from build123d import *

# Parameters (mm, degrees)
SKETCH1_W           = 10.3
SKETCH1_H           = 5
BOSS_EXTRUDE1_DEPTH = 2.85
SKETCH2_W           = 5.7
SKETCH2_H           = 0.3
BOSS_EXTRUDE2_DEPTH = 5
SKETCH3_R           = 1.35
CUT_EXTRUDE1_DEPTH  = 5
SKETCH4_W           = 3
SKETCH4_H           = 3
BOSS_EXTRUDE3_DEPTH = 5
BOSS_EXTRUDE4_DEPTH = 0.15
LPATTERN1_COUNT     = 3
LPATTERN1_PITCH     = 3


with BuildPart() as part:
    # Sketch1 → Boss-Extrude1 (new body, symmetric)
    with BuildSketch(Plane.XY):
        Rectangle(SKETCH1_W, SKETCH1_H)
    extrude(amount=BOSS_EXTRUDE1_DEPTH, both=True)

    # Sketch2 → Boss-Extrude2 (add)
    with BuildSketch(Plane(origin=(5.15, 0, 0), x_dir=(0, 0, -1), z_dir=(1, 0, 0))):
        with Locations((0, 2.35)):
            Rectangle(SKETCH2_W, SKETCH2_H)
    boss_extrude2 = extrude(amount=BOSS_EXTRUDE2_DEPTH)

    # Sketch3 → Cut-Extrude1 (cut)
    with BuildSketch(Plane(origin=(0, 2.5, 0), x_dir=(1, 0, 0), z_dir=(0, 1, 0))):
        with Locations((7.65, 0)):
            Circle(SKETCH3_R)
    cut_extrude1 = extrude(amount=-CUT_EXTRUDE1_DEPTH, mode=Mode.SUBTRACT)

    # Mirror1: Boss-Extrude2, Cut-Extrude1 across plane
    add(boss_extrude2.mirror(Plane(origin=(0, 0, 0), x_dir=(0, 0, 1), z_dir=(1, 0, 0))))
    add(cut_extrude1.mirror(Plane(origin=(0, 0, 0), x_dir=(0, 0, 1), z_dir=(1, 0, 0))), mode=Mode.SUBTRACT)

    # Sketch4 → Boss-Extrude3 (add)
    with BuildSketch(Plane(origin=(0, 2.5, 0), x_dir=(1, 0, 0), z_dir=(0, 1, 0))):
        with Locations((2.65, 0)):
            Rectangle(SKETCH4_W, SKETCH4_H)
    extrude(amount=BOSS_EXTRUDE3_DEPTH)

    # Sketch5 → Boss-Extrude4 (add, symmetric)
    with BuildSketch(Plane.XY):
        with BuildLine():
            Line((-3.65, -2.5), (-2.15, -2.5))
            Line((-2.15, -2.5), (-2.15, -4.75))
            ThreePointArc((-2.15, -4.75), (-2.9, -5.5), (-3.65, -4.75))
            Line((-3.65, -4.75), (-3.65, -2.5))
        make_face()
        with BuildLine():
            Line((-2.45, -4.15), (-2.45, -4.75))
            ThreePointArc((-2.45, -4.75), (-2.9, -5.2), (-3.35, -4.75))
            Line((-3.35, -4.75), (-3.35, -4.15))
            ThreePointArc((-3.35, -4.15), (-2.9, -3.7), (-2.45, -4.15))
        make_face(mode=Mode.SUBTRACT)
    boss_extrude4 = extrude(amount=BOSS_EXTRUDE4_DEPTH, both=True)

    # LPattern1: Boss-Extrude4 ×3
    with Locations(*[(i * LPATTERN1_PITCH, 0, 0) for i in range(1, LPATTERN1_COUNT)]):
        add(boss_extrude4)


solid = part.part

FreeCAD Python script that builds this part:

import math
import FreeCAD as App
import Part
import Sketcher

V = App.Vector
Q = App.Units.Quantity

doc = App.newDocument("Part")
params = doc.addObject("Spreadsheet::Sheet", "Params")
for row, (alias, value) in enumerate([
    ("sketch1_height", "5 mm"),
    ("sketch1_width", "10.3 mm"),
    ("pad1_length", "5.7 mm"),
    ("sketch2_width", "0.3 mm"),
    ("sketch2_height", "5.7 mm"),
    ("pad2_length", "5 mm"),
    ("sketch3_diameter", "2.7 mm"),
    ("pocket1_length", "5 mm"),
    ("sketch4_width", "3 mm"),
    ("pad3_length", "5 mm"),
    ("sketch5_radius", "0.75 mm"),
    ("sketch5_radius2", "0.45 mm"),
    ("sketch5_height", "0.6 mm"),
    ("sketch5_height2", "2.25 mm"),
    ("pad4_length", "0.3 mm"),
    ("linearpattern_pitch", "3 mm"),
], start=1):
    params.set(f"A{row}", alias)
    params.set(f"B{row}", "=" + value)
    params.setAlias(f"B{row}", alias)

body = doc.addObject("PartDesign::Body", "Body")

# Sketch on XY plane
sketch1 = body.newObject("Sketcher::SketchObject", "Sketch")
sketch1.AttachmentSupport = (doc.getObject("XY_Plane"), [""])
sketch1.MapMode = "FlatFace"
sketch1.addGeometry([
    Part.LineSegment(V(-5, 2, 0), V(-5, -2, 0)),
    Part.LineSegment(V(-5, -2, 0), V(5, -2, 0)),
    Part.LineSegment(V(5, -2, 0), V(5, 2, 0)),
    Part.LineSegment(V(5, 2, 0), V(-5, 2, 0)),
], False)
sketch1.addConstraint([
    Sketcher.Constraint("Coincident", 0, 2, 1, 1),
    Sketcher.Constraint("Coincident", 1, 2, 2, 1),
    Sketcher.Constraint("Coincident", 2, 2, 3, 1),
    Sketcher.Constraint("Coincident", 3, 2, 0, 1),
    Sketcher.Constraint("Vertical", 0),
    Sketcher.Constraint("Horizontal", 1),
    Sketcher.Constraint("Vertical", 2),
    Sketcher.Constraint("Horizontal", 3),
    Sketcher.Constraint("Symmetric", 0, 2, 2, 2, -1, 1),
    Sketcher.Constraint("DistanceY", 0, 2, 0, 1, Q("5 mm")),
    Sketcher.Constraint("DistanceX", 1, 1, 1, 2, Q("10.3 mm")),
])
sketch1.setExpression("Constraints[9]", "Params.sketch1_height")
sketch1.setExpression("Constraints[10]", "Params.sketch1_width")
pad1 = body.newObject("PartDesign::Pad", "Pad")
pad1.Profile = sketch1
pad1.setExpression("Length", "Params.pad1_length")
pad1.Midplane = True

# Sketch on YZ plane
sketch2 = body.newObject("Sketcher::SketchObject", "Sketch001")
sketch2.AttachmentSupport = (doc.getObject("YZ_Plane"), [""])
sketch2.MapMode = "FlatFace"
sketch2.AttachmentOffset = App.Placement(V(0, 0, 5.15), App.Rotation())
sketch2.addGeometry([
    Part.LineSegment(V(2.5, 2.85, 0), V(2.2, 2.85, 0)),
    Part.LineSegment(V(2.2, 2.85, 0), V(2.2, -2.85, 0)),
    Part.LineSegment(V(2.2, -2.85, 0), V(2.5, -2.85, 0)),
    Part.LineSegment(V(2.5, -2.85, 0), V(2.5, 2.85, 0)),
], False)
sketch2.addConstraint([
    Sketcher.Constraint("Coincident", 0, 2, 1, 1),
    Sketcher.Constraint("Coincident", 1, 2, 2, 1),
    Sketcher.Constraint("Coincident", 2, 2, 3, 1),
    Sketcher.Constraint("Coincident", 3, 2, 0, 1),
    Sketcher.Constraint("Horizontal", 0),
    Sketcher.Constraint("Vertical", 1),
    Sketcher.Constraint("Horizontal", 2),
    Sketcher.Constraint("Vertical", 3),
    Sketcher.Constraint("DistanceX", 0, 2, 0, 1, Q("0.3 mm")),
    Sketcher.Constraint("DistanceY", 1, 2, 1, 1, Q("5.7 mm")),
    Sketcher.Constraint("DistanceX", -1, 1, 0, 2, Q("2.2 mm")),
    Sketcher.Constraint("DistanceY", -1, 1, 0, 2, Q("2.85 mm")),
])
sketch2.setExpression("Constraints[8]", "Params.sketch2_width")
sketch2.setExpression("Constraints[9]", "Params.sketch2_height")
pad2 = body.newObject("PartDesign::Pad", "Pad001")
pad2.Profile = sketch2
pad2.setExpression("Length", "Params.pad2_length")

# Sketch on XZ plane
sketch3 = body.newObject("Sketcher::SketchObject", "Sketch002")
sketch3.AttachmentSupport = (doc.getObject("XZ_Plane"), [""])
sketch3.MapMode = "FlatFace"
sketch3.AttachmentOffset = App.Placement(V(0, 0, -2.5), App.Rotation())
sketch3.addGeometry(Part.Circle(V(7.7, 0, 0), V(0, 0, 1), 1.4), False)
sketch3.addConstraint([
    Sketcher.Constraint("PointOnObject", 0, 3, -1),
    Sketcher.Constraint("Diameter", 0, Q("2.7 mm")),
    Sketcher.Constraint("DistanceX", -1, 1, 0, 3, Q("7.65 mm")),
])
sketch3.setExpression("Constraints[1]", "Params.sketch3_diameter")
pocket1 = body.newObject("PartDesign::Pocket", "Pocket")
pocket1.Profile = sketch3
pocket1.setExpression("Length", "Params.pocket1_length")
pocket1.Reversed = True
doc.recompute()

mirrored = body.newObject("PartDesign::Mirrored", "Mirrored")
mirrored.Originals = [pad2, pocket1]
mirrored.MirrorPlane = (doc.getObject("YZ_Plane"), [""])
body.Tip = mirrored

# Sketch on XZ plane
sketch4 = body.newObject("Sketcher::SketchObject", "Sketch003")
sketch4.AttachmentSupport = (doc.getObject("XZ_Plane"), [""])
sketch4.MapMode = "FlatFace"
sketch4.AttachmentOffset = App.Placement(V(0, 0, -2.5), App.Rotation())
sketch4.addGeometry([
    Part.LineSegment(V(1.1, -1.5, 0), V(1.1, 1.5, 0)),
    Part.LineSegment(V(1.1, 1.5, 0), V(4.2, 1.5, 0)),
    Part.LineSegment(V(4.2, 1.5, 0), V(4.2, -1.5, 0)),
    Part.LineSegment(V(4.2, -1.5, 0), V(1.1, -1.5, 0)),
], False)
sketch4.addConstraint([
    Sketcher.Constraint("Coincident", 0, 2, 1, 1),
    Sketcher.Constraint("Coincident", 1, 2, 2, 1),
    Sketcher.Constraint("Coincident", 2, 2, 3, 1),
    Sketcher.Constraint("Coincident", 3, 2, 0, 1),
    Sketcher.Constraint("Vertical", 0),
    Sketcher.Constraint("Horizontal", 1),
    Sketcher.Constraint("Vertical", 2),
    Sketcher.Constraint("Horizontal", 3),
    Sketcher.Constraint("Equal", 3, 0),
    Sketcher.Constraint("DistanceX", 1, 1, 1, 2, Q("3 mm")),
    Sketcher.Constraint("DistanceY", -1, 1, 0, 2, Q("1.5 mm")),
    Sketcher.Constraint("DistanceX", -1, 1, 0, 2, Q("1.15 mm")),
])
sketch4.setExpression("Constraints[9]", "Params.sketch4_width")
pad3 = body.newObject("PartDesign::Pad", "Pad002")
pad3.Profile = sketch4
pad3.setExpression("Length", "Params.pad3_length")
pad3.Reversed = True

# Sketch on XY plane
sketch5 = body.newObject("Sketcher::SketchObject", "Sketch004")
sketch5.AttachmentSupport = (doc.getObject("XY_Plane"), [""])
sketch5.MapMode = "FlatFace"
sketch5.addGeometry([
    Part.LineSegment(V(-2.15, -2.5, 0), V(-3.65, -2.5, 0)),  # 0
    Part.LineSegment(V(-3.65, -2.5, 0), V(-3.65, -4.75, 0)),  # 1
    Part.ArcOfCircle(Part.Circle(V(-2.9, -4.75, 0), V(0, 0, 1), 0.75), math.radians(180), math.radians(360)),  # 2
    Part.LineSegment(V(-2.15, -4.75, 0), V(-2.15, -2.5, 0)),  # 3
    Part.LineSegment(V(-2.45, -4.15, 0), V(-2.45, -4.75, 0)),  # 4
    Part.ArcOfCircle(Part.Circle(V(-2.9, -4.75, 0), V(0, 0, 1), 0.45), math.radians(180), math.radians(360)),  # 5
    Part.LineSegment(V(-3.35, -4.75, 0), V(-3.35, -4.15, 0)),  # 6
    Part.ArcOfCircle(Part.Circle(V(-2.9, -4.15, 0), V(0, 0, 1), 0.45), math.radians(0), math.radians(180)),  # 7
], False)
sketch5.addConstraint([
    Sketcher.Constraint("Coincident", 0, 2, 1, 1),
    Sketcher.Constraint("Tangent", 1, 2, 2, 1),
    Sketcher.Constraint("Tangent", 2, 2, 3, 1),
    Sketcher.Constraint("Coincident", 3, 2, 0, 1),
    Sketcher.Constraint("Tangent", 4, 2, 5, 2),
    Sketcher.Constraint("Tangent", 5, 1, 6, 1),
    Sketcher.Constraint("Tangent", 6, 2, 7, 2),
    Sketcher.Constraint("Tangent", 7, 1, 4, 1),
    Sketcher.Constraint("Horizontal", 0),
    Sketcher.Constraint("Vertical", 1),
    Sketcher.Constraint("Vertical", 3),
    Sketcher.Constraint("Vertical", 4),
    Sketcher.Constraint("Vertical", 6),
    Sketcher.Constraint("Coincident", 5, 3, 2, 3),
    Sketcher.Constraint("Radius", 2, Q("0.75 mm")),
    Sketcher.Constraint("Radius", 5, Q("0.45 mm")),
    Sketcher.Constraint("DistanceY", 4, 2, 4, 1, Q("0.6 mm")),
    Sketcher.Constraint("DistanceY", 1, 2, 1, 1, Q("2.25 mm")),
    Sketcher.Constraint("DistanceX", 2, 3, -1, 1, Q("2.9 mm")),
    Sketcher.Constraint("DistanceY", 0, 2, -1, 1, Q("2.5 mm")),
])
sketch5.setExpression("Constraints[14]", "Params.sketch5_radius")
sketch5.setExpression("Constraints[15]", "Params.sketch5_radius2")
sketch5.setExpression("Constraints[16]", "Params.sketch5_height")
sketch5.setExpression("Constraints[17]", "Params.sketch5_height2")
pad4 = body.newObject("PartDesign::Pad", "Pad003")
pad4.Profile = sketch5
pad4.setExpression("Length", "Params.pad4_length")
pad4.Midplane = True
doc.recompute()

linearpattern = body.newObject("PartDesign::LinearPattern", "LinearPattern")
linearpattern.Originals = [pad4]
linearpattern.Direction = (doc.getObject("X_Axis"), [""])
linearpattern.Mode = "offset"
linearpattern.setExpression("Offset", "Params.linearpattern_pitch")
linearpattern.Occurrences = 3
body.Tip = linearpattern

doc.recompute()
